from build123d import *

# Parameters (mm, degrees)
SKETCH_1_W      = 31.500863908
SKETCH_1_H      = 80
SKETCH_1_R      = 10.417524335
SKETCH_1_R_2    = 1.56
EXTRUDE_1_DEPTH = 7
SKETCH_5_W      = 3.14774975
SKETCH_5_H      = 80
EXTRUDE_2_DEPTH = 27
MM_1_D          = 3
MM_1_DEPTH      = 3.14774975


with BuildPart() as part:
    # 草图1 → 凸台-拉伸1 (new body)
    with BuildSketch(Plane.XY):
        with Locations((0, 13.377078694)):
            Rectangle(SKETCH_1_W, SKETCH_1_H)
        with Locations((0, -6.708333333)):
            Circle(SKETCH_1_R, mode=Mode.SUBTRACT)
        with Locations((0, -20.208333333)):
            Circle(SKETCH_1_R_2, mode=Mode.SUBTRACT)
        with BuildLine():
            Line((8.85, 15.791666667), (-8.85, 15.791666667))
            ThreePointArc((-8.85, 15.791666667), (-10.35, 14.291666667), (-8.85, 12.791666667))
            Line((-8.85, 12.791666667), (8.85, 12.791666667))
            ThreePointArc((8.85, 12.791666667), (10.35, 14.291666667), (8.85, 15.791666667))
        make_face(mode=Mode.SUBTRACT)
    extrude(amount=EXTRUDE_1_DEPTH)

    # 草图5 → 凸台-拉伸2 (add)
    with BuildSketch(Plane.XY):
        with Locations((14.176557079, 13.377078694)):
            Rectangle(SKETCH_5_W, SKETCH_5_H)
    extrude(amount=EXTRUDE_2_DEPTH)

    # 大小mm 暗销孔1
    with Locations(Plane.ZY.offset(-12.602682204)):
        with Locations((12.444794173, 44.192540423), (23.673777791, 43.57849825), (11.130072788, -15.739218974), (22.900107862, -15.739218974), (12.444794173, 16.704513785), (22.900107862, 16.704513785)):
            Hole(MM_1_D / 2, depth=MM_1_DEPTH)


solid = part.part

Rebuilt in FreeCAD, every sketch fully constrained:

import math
import FreeCAD as App
import Part
import Sketcher
Q = App.Units.Quantity


def add_polygon(sketch, points):
    """Adds a closed chain of lines whose ends are joined by coincident constraints."""
    first, n = sketch.GeometryCount, len(points)
    for a, b in zip(points, points[1:] + points[:1]):
        sketch.addGeometry(Part.LineSegment(App.Vector(*a, 0), App.Vector(*b, 0)), False)
    for i in range(n):
        sketch.addConstraint(Sketcher.Constraint("Coincident", first + i, 2, first + (i + 1) % n, 1))

doc = App.newDocument("Part")
body = doc.addObject("PartDesign::Body", "Body")

# Sketch on XY plane
sketch1 = body.newObject("Sketcher::SketchObject", "Sketch")
sketch1.AttachmentSupport = (doc.getObject("XY_Plane"), [""])
sketch1.MapMode = "FlatFace"
add_polygon(sketch1, [(-15.750432, 53.377079), (-15.750432, -26.622921), (15.750432, -26.622921), (15.750432, 53.377079)])  # lines 0-3
sketch1.addGeometry(Part.Circle(App.Vector(0, -20.208333, 0), App.Vector(0, 0, 1), 1.56), False)  # 4
sketch1.addGeometry(Part.Circle(App.Vector(0, -6.708333, 0), App.Vector(0, 0, 1), 10.417524), False)  # 5
sketch1.addGeometry(Part.LineSegment(App.Vector(-8.85, 15.791667, 0), App.Vector(8.85, 15.791667, 0)), False)  # 6
sketch1.addGeometry(Part.ArcOfCircle(Part.Circle(App.Vector(8.85, 14.291667, 0), App.Vector(0, 0, 1), 1.5), math.radians(-90), math.radians(90)), False)  # 7
sketch1.addGeometry(Part.LineSegment(App.Vector(8.85, 12.791667, 0), App.Vector(-8.85, 12.791667, 0)), False)  # 8
sketch1.addGeometry(Part.ArcOfCircle(Part.Circle(App.Vector(-8.85, 14.291667, 0), App.Vector(0, 0, 1), 1.5), math.radians(90), math.radians(270)), False)  # 9
sketch1.addConstraint(Sketcher.Constraint("Tangent", 6, 2, 7, 2))
sketch1.addConstraint(Sketcher.Constraint("Tangent", 7, 1, 8, 1))
sketch1.addConstraint(Sketcher.Constraint("Tangent", 8, 2, 9, 2))
sketch1.addConstraint(Sketcher.Constraint("Tangent", 9, 1, 6, 1))
sketch1.addConstraint(Sketcher.Constraint("Vertical", 0))
sketch1.addConstraint(Sketcher.Constraint("Horizontal", 1))
sketch1.addConstraint(Sketcher.Constraint("Vertical", 2))
sketch1.addConstraint(Sketcher.Constraint("Horizontal", 3))
sketch1.addConstraint(Sketcher.Constraint("Horizontal", 6))
sketch1.addConstraint(Sketcher.Constraint("Horizontal", 8))
sketch1.addConstraint(Sketcher.Constraint("PointOnObject", 4, 3, -2))
sketch1.addConstraint(Sketcher.Constraint("PointOnObject", 5, 3, -2))
sketch1.addConstraint(Sketcher.Constraint("Radius", 7, Q("1.5 mm")))
sketch1.addConstraint(Sketcher.Constraint("Diameter", 4, Q("3.12 mm")))
sketch1.addConstraint(Sketcher.Constraint("DistanceY", 0, 2, 0, 1, Q("80 mm")))
sketch1.addConstraint(Sketcher.Constraint("DistanceX", 6, 1, 6, 2, Q("17.7 mm")))
sketch1.addConstraint(Sketcher.Constraint("DistanceY", 5, 3, 7, 3, Q("21 mm")))
sketch1.addConstraint(Sketcher.Constraint("DistanceY", 4, 3, 6, 2, Q("36 mm")))
sketch1.addConstraint(Sketcher.Constraint("Diameter", 5, Q("20.835049 mm")))
sketch1.addConstraint(Sketcher.Constraint("DistanceX", -1, 1, 7, 3, Q("8.85 mm")))
sketch1.addConstraint(Sketcher.Constraint("DistanceX", 1, 1, 1, 2, Q("31.500864 mm")))
sketch1.addConstraint(Sketcher.Constraint("DistanceX", 0, 2, -1, 1, Q("15.750432 mm")))
sketch1.addConstraint(Sketcher.Constraint("DistanceY", 0, 2, -1, 1, Q("26.622921 mm")))
sketch1.addConstraint(Sketcher.Constraint("DistanceY", 4, 3, -1, 1, Q("20.208333 mm")))
pad1 = body.newObject("PartDesign::Pad", "Pad")
pad1.Profile = sketch1
pad1.Length = 7

# Sketch on XY plane
sketch2 = body.newObject("Sketcher::SketchObject", "Sketch001")
sketch2.AttachmentSupport = (doc.getObject("XY_Plane"), [""])
sketch2.MapMode = "FlatFace"
add_polygon(sketch2, [(12.602682, 53.377079), (12.602682, -26.622921), (15.750432, -26.622921), (15.750432, 53.377079)])  # lines 0-3
sketch2.addConstraint(Sketcher.Constraint("Vertical", 0))
sketch2.addConstraint(Sketcher.Constraint("Horizontal", 1))
sketch2.addConstraint(Sketcher.Constraint("Vertical", 2))
sketch2.addConstraint(Sketcher.Constraint("Horizontal", 3))
sketch2.addConstraint(Sketcher.Constraint("DistanceY", 0, 2, 0, 1, Q("80 mm")))
sketch2.addConstraint(Sketcher.Constraint("DistanceX", 1, 1, 1, 2, Q("3.14775 mm")))
sketch2.addConstraint(Sketcher.Constraint("DistanceY", 0, 2, -1, 1, Q("26.622921 mm")))
sketch2.addConstraint(Sketcher.Constraint("DistanceX", -1, 1, 1, 2, Q("15.750432 mm")))
pad2 = body.newObject("PartDesign::Pad", "Pad001")
pad2.Profile = sketch2
pad2.Length = 27

# Sketch on YZ plane
sketch3 = body.newObject("Sketcher::SketchObject", "Sketch002")
sketch3.AttachmentSupport = (doc.getObject("YZ_Plane"), [""])
sketch3.MapMode = "FlatFace"
sketch3.AttachmentOffset = App.Placement(App.Vector(0, 0, 12.602682), App.Rotation())
sketch3.addGeometry(Part.Circle(App.Vector(44.19254, 12.444794, 0), App.Vector(0, 0, 1), 1.5), False)
sketch3.addGeometry(Part.Circle(App.Vector(43.578498, 23.673778, 0), App.Vector(0, 0, 1), 1.5), False)
sketch3.addGeometry(Part.Circle(App.Vector(-15.739219, 11.130073, 0), App.Vector(0, 0, 1), 1.5), False)
sketch3.addGeometry(Part.Circle(App.Vector(-15.739219, 22.900108, 0), App.Vector(0, 0, 1), 1.5), False)
sketch3.addGeometry(Part.Circle(App.Vector(16.704514, 12.444794, 0), App.Vector(0, 0, 1), 1.5), False)
sketch3.addGeometry(Part.Circle(App.Vector(16.704514, 22.900108, 0), App.Vector(0, 0, 1), 1.5), False)
sketch3.addConstraint(Sketcher.Constraint("Equal", 0, 1))
sketch3.addConstraint(Sketcher.Constraint("Equal", 1, 2))
sketch3.addConstraint(Sketcher.Constraint("Equal", 2, 3))
sketch3.addConstraint(Sketcher.Constraint("Equal", 3, 4))
sketch3.addConstraint(Sketcher.Constraint("Equal", 4, 5))
sketch3.addConstraint(Sketcher.Constraint("Horizontal", 0, 3, 4, 3))
sketch3.addConstraint(Sketcher.Constraint("Horizontal", 3, 3, 5, 3))
sketch3.addConstraint(Sketcher.Constraint("Vertical", 2, 3, 3, 3))
sketch3.addConstraint(Sketcher.Constraint("Vertical", 4, 3, 5, 3))
sketch3.addConstraint(Sketcher.Constraint("Diameter", 0, Q("3 mm")))
sketch3.addConstraint(Sketcher.Constraint("DistanceX", -1, 1, 1, 3, Q("43.578498 mm")))
sketch3.addConstraint(Sketcher.Constraint("DistanceX", -1, 1, 0, 3, Q("44.19254 mm")))
sketch3.addConstraint(Sketcher.Constraint("DistanceX", 2, 3, -1, 1, Q("15.739219 mm")))
sketch3.addConstraint(Sketcher.Constraint("DistanceY", 2, 3, 0, 3, Q("1.314721 mm")))
sketch3.addConstraint(Sketcher.Constraint("DistanceY", 3, 3, 1, 3, Q("0.77367 mm")))
sketch3.addConstraint(Sketcher.Constraint("DistanceY", -1, 1, 0, 3, Q("12.444794 mm")))
sketch3.addConstraint(Sketcher.Constraint("DistanceY", -1, 1, 1, 3, Q("23.673778 mm")))
sketch3.addConstraint(Sketcher.Constraint("DistanceX", -1, 1, 4, 3, Q("16.704514 mm")))
doc.recompute()
hole = body.newObject("PartDesign::Hole", "Hole")
hole.Profile = sketch3
hole.ThreadType = "None"
hole.Diameter = 3
hole.DepthType = "Dimension"
hole.Depth = 3.14775
hole.DrillPoint = "Flat"
hole.Reversed = True

doc.recompute()
